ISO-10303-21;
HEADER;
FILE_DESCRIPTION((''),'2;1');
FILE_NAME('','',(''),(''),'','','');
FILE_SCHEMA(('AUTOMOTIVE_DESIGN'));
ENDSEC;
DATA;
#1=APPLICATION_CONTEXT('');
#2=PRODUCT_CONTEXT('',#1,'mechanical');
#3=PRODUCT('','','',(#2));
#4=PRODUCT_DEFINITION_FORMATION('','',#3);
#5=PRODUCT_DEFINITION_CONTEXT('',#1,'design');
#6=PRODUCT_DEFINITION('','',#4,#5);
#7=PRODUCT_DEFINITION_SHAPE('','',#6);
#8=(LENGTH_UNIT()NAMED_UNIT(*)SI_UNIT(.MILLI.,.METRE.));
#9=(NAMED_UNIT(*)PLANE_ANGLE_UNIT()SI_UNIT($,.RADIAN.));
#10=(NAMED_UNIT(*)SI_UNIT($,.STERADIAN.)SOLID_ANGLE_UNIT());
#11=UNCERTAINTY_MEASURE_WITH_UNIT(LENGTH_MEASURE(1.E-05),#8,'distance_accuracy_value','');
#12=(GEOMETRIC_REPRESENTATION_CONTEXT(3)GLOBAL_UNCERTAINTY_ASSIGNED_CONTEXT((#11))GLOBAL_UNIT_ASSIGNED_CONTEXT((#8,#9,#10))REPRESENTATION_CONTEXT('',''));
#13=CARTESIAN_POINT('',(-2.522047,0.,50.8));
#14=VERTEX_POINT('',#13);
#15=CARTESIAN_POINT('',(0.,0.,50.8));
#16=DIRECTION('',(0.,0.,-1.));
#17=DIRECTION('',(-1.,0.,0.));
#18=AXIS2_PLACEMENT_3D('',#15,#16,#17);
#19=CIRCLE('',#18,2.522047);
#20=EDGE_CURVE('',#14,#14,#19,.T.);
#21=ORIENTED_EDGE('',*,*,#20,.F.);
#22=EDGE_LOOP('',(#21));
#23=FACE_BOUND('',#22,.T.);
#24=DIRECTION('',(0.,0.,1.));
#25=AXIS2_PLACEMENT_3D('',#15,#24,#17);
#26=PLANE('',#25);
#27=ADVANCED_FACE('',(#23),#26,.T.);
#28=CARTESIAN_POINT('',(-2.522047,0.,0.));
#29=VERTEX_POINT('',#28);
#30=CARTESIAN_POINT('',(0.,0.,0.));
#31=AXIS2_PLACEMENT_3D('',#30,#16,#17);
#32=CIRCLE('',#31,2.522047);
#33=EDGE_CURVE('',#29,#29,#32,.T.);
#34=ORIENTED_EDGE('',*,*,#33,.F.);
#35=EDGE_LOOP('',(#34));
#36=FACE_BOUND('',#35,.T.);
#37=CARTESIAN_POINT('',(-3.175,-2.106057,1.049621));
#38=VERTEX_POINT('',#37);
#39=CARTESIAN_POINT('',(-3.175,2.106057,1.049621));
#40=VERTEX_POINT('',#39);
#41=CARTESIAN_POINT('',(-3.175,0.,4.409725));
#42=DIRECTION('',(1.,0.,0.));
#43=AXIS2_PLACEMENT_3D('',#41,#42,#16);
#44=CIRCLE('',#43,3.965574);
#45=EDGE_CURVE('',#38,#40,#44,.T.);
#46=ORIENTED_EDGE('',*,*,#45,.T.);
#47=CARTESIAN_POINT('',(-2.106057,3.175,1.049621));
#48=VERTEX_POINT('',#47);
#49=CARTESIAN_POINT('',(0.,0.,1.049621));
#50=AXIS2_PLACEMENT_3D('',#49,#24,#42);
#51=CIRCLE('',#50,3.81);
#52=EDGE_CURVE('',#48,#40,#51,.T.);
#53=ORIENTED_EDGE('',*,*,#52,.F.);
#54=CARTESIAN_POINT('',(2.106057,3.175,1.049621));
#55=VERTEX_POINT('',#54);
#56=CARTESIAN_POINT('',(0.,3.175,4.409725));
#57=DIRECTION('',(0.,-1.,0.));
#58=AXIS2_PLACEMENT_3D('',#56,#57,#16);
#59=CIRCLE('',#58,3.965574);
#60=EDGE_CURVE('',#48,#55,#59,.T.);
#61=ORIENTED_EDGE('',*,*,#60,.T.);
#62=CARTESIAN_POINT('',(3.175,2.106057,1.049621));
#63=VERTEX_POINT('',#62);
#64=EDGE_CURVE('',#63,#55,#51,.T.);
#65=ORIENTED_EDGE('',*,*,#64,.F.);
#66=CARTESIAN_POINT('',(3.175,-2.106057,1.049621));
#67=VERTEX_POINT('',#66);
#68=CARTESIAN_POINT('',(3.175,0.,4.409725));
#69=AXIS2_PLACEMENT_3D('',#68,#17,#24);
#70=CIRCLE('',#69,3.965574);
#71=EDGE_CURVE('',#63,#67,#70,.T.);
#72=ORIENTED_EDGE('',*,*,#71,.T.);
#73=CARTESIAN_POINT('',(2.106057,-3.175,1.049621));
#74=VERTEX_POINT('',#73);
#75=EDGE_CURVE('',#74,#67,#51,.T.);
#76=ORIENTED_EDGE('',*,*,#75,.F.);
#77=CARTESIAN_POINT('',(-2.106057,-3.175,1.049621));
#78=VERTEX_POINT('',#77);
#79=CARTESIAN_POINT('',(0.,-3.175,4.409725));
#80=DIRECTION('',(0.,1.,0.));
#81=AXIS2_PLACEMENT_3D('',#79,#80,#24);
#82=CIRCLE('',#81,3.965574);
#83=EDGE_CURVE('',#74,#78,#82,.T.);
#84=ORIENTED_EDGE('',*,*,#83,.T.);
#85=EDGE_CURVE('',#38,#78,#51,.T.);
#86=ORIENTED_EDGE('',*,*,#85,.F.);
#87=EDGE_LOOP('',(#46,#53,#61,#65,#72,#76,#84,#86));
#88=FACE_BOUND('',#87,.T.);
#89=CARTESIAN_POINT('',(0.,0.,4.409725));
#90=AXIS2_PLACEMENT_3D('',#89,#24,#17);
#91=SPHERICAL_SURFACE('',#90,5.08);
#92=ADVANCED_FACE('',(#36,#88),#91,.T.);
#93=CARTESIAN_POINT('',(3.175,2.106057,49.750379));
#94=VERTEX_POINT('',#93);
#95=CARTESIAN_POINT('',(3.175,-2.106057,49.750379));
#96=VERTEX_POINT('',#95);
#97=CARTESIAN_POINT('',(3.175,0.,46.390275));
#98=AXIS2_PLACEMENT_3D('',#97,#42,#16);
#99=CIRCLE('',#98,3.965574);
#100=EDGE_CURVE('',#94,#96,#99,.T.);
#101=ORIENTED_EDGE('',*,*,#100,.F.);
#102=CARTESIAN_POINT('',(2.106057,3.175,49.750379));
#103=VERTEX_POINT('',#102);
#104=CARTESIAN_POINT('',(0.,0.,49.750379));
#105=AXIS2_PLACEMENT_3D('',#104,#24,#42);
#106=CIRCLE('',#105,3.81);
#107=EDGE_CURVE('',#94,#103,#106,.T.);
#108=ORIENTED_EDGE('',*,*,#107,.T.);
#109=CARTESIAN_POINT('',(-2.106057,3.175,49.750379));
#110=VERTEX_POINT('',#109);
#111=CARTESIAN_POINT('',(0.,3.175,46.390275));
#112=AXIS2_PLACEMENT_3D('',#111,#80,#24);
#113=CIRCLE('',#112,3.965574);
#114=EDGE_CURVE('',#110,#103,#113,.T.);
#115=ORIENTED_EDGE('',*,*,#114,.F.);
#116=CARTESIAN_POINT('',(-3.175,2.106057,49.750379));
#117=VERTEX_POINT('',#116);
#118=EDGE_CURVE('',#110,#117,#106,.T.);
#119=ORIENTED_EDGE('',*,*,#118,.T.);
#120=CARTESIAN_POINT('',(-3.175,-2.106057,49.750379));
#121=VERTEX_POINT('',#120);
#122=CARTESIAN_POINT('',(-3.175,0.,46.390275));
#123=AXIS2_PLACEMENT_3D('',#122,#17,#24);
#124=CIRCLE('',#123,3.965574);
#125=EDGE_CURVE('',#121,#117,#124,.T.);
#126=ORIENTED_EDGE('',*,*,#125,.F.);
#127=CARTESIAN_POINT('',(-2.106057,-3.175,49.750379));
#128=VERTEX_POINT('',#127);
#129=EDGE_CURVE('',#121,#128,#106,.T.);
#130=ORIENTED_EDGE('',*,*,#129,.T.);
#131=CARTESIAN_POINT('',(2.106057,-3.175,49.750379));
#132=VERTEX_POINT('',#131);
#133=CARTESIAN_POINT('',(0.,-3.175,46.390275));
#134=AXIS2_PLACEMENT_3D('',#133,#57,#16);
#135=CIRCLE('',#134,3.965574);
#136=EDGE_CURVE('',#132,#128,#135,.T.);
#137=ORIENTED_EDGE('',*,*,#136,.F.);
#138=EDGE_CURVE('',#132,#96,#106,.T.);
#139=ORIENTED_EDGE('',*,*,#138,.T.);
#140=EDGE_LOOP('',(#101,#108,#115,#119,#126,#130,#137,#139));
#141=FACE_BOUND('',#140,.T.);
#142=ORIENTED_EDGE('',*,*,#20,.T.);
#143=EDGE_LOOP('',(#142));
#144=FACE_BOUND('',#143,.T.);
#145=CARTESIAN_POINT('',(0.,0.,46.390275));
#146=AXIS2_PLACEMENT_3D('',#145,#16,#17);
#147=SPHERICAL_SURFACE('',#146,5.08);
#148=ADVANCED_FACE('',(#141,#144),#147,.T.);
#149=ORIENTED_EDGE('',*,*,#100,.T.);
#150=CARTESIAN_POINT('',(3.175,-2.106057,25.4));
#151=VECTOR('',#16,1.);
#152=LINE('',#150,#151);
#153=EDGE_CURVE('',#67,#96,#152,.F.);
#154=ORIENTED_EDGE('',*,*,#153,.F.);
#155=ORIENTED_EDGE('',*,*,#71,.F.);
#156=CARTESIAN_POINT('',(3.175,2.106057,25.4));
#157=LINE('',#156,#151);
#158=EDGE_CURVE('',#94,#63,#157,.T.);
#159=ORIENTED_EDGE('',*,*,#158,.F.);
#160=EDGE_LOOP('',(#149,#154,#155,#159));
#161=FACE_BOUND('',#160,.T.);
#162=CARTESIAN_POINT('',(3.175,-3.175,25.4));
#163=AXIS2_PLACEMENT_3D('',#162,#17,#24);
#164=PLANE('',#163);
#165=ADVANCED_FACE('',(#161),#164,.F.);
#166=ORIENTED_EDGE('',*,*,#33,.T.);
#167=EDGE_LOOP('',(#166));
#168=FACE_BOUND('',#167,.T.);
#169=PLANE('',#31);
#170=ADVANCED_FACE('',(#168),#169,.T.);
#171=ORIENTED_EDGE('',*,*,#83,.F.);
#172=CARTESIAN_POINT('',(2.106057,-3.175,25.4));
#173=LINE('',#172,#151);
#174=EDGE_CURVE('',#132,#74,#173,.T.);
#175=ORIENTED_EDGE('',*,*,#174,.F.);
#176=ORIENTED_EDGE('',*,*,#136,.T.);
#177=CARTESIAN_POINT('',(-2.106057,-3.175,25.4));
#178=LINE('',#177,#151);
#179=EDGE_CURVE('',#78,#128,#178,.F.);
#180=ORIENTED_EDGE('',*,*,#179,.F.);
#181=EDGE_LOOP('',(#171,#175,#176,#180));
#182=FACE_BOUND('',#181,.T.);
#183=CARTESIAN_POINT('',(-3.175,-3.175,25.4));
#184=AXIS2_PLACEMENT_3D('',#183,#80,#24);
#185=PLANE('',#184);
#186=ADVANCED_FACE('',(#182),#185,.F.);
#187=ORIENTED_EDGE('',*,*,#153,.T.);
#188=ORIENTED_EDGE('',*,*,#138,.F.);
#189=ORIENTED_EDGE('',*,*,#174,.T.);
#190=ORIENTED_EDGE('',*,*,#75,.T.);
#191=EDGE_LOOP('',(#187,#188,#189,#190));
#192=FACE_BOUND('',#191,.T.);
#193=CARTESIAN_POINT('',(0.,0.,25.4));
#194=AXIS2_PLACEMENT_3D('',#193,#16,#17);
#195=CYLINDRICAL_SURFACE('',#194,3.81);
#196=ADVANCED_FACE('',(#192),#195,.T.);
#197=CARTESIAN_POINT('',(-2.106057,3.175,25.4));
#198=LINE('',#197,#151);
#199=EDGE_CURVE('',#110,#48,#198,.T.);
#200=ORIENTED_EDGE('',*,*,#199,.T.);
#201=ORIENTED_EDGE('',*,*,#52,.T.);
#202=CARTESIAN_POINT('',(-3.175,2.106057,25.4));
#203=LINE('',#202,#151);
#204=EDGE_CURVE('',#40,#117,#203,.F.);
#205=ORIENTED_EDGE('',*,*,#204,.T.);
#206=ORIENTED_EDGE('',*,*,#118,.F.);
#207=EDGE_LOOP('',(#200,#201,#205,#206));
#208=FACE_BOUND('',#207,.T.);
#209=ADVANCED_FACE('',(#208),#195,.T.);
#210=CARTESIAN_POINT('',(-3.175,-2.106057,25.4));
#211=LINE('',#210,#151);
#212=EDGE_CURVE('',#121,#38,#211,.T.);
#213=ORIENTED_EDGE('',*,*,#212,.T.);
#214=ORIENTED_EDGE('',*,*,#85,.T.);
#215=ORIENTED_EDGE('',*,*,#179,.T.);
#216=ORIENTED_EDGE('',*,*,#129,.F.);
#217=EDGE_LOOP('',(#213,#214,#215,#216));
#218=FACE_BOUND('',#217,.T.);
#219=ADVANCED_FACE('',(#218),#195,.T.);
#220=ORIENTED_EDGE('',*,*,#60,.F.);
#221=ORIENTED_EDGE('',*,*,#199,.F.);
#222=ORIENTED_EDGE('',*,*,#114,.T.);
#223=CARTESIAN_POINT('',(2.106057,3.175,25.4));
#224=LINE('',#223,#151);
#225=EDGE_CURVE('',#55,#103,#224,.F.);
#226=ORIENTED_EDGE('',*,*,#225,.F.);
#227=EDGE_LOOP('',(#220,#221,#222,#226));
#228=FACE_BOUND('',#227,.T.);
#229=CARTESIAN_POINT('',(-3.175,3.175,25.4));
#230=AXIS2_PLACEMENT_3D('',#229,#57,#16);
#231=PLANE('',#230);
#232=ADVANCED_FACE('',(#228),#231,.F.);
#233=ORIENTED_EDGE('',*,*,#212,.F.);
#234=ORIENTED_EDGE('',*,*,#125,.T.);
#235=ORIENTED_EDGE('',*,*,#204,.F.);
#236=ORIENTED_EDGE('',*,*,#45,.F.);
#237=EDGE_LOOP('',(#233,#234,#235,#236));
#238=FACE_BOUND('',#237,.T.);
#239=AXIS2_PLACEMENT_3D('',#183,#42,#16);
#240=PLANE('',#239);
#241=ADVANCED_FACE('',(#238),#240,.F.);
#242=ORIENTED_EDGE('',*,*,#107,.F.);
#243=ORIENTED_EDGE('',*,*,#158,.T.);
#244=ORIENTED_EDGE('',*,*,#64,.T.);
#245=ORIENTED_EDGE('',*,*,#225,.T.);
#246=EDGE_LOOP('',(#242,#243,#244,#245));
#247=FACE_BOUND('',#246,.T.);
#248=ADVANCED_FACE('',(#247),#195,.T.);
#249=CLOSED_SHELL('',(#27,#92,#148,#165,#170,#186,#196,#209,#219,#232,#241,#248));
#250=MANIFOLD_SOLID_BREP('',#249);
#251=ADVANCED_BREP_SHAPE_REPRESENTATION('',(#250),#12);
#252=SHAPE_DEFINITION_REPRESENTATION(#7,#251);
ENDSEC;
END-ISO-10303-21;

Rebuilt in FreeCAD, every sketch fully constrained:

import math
import FreeCAD as App
import Part
import Sketcher
from FreeCAD import Vector
Q = App.Units.Quantity


def add_polygon(sketch, points):
    """Adds a closed chain of lines whose ends are joined by coincident constraints."""
    first, n = sketch.GeometryCount, len(points)
    for a, b in zip(points, points[1:] + points[:1]):
        sketch.addGeometry(Part.LineSegment(App.Vector(*a, 0), App.Vector(*b, 0)), False)
    for i in range(n):
        sketch.addConstraint(Sketcher.Constraint("Coincident", first + i, 2, first + (i + 1) % n, 1))

doc = App.newDocument("Part")
body = doc.addObject("PartDesign::Body", "Body")

# Sketch on XY plane
sketch1 = doc.addObject("Sketcher::SketchObject", "Sketch")
body.addObject(sketch1)
sketch1.AttachmentSupport = (doc.XY_Plane, [""])
sketch1.MapMode = "FlatFace"
add_polygon(sketch1, [(-3, 3), (-3, -3), (3, -3), (3, 3)])  # lines 0-3
sketch1.addConstraint(Sketcher.Constraint("Vertical", 0))
sketch1.addConstraint(Sketcher.Constraint("Horizontal", 1))
sketch1.addConstraint(Sketcher.Constraint("Vertical", 2))
sketch1.addConstraint(Sketcher.Constraint("Horizontal", 3))
sketch1.addConstraint(Sketcher.Constraint("Symmetric", 0, 2, 2, 2, -1, 1))
sketch1.addConstraint(Sketcher.Constraint("Equal", 3, 0))
sketch1.addConstraint(Sketcher.Constraint("DistanceX", 1, 1, 1, 2, Q("0.25 in")))
pad1 = doc.addObject("PartDesign::Pad", "Pad")
body.addObject(pad1)
pad1.Profile = sketch1
pad1.Length = Q("1 in")

# Sketch on XY plane
sketch2 = doc.addObject("Sketcher::SketchObject", "Sketch001")
body.addObject(sketch2)
sketch2.AttachmentSupport = (doc.XY_Plane, [""])
sketch2.MapMode = "FlatFace"
add_polygon(sketch2, [(6.9, 6.9), (6.9, -6.9), (-6.9, -6.9), (-6.9, 6.9)])  # lines 0-3
sketch2.addGeometry(Part.Circle(Vector(0, 0, 0), Vector(0, 0, 1), 3.8), False)  # 4
sketch2.addConstraint(Sketcher.Constraint("Vertical", 0))
sketch2.addConstraint(Sketcher.Constraint("Horizontal", 1))
sketch2.addConstraint(Sketcher.Constraint("Vertical", 2))
sketch2.addConstraint(Sketcher.Constraint("Horizontal", 3))
sketch2.addConstraint(Sketcher.Constraint("Coincident", 4, 3, -1, 1))
sketch2.addConstraint(Sketcher.Constraint("Symmetric", 0, 2, 2, 2, -1, 1))
sketch2.addConstraint(Sketcher.Constraint("Equal", 3, 0))
sketch2.addConstraint(Sketcher.Constraint("Diameter", 4, Q("0.3 in")))
sketch2.addConstraint(Sketcher.Constraint("DistanceX", 1, 2, 1, 1, 13.738))
pocket1 = doc.addObject("PartDesign::Pocket", "Pocket")
body.addObject(pocket1)
pocket1.Profile = sketch2
pocket1.Type = "ThroughAll"
pocket1.Reversed = True

# Sketch on XZ plane
sketch3 = doc.addObject("Sketcher::SketchObject", "Sketch002")
body.addObject(sketch3)
sketch3.AttachmentSupport = (doc.XZ_Plane, [""])
sketch3.MapMode = "FlatFace"
sketch3.addGeometry(Part.LineSegment(Vector(-5, -6, 0), Vector(-5, 4, 0)), False)
sketch3.addGeometry(Part.ArcOfCircle(Part.Circle(Vector(0, 4, 0), Vector(0, 0, 1), 5), math.radians(-174), math.radians(-90)), False)
sketch3.addGeometry(Part.LineSegment(Vector(0, -1, 0), Vector(0, -6, 0)), False)
sketch3.addGeometry(Part.LineSegment(Vector(0, -6, 0), Vector(-5, -6, 0)), False)
sketch3.addConstraint(Sketcher.Constraint("Coincident", 0, 2, 1, 1))
sketch3.addConstraint(Sketcher.Constraint("Coincident", 1, 2, 2, 1))
sketch3.addConstraint(Sketcher.Constraint("Coincident", 2, 2, 3, 1))
sketch3.addConstraint(Sketcher.Constraint("Coincident", 3, 2, 0, 1))
sketch3.addConstraint(Sketcher.Constraint("Vertical", 0))
sketch3.addConstraint(Sketcher.Constraint("Vertical", 2))
sketch3.addConstraint(Sketcher.Constraint("Horizontal", 3))
sketch3.addConstraint(Sketcher.Constraint("PointOnObject", 1, 3, -2))
sketch3.addConstraint(Sketcher.Constraint("PointOnObject", 1, 2, -2))
sketch3.addConstraint(Sketcher.Constraint("Radius", 1, Q("0.2 in")))
sketch3.addConstraint(Sketcher.Constraint("DistanceX", 3, 2, 3, 1, 5.053686))
sketch3.addConstraint(Sketcher.Constraint("DistanceY", 0, 1, 0, 2, 9.633866))
sketch3.addConstraint(Sketcher.Constraint("DistanceY", 2, 2, -1, 1, 5.740531))
groove = doc.addObject("PartDesign::Groove", "Groove")
body.addObject(groove)
groove.Profile = sketch3
groove.ReferenceAxis = (sketch3, ["V_Axis"])
groove.Angle = 360
body2 = doc.addObject("PartDesign::Body", "Body001")
doc.recompute()

body2.BaseFeature = body
doc.recompute()

mirroring = doc.addObject("Part::Mirroring", "Mirroring")
mirroring.Source = body
mirroring.Base = Vector(0, 0, 25.4)
mirroring.Normal = Vector(0, 0, -1)
body3 = doc.addObject("PartDesign::Body", "Body002")
body3.BaseFeature = mirroring
boolean = doc.addObject("PartDesign::Boolean", "Boolean")
body2.addObject(boolean)
boolean.Type = "Fuse"
boolean.addObjects([body3])
doc.recompute()
mirroring.Visibility = False

doc.recompute()
